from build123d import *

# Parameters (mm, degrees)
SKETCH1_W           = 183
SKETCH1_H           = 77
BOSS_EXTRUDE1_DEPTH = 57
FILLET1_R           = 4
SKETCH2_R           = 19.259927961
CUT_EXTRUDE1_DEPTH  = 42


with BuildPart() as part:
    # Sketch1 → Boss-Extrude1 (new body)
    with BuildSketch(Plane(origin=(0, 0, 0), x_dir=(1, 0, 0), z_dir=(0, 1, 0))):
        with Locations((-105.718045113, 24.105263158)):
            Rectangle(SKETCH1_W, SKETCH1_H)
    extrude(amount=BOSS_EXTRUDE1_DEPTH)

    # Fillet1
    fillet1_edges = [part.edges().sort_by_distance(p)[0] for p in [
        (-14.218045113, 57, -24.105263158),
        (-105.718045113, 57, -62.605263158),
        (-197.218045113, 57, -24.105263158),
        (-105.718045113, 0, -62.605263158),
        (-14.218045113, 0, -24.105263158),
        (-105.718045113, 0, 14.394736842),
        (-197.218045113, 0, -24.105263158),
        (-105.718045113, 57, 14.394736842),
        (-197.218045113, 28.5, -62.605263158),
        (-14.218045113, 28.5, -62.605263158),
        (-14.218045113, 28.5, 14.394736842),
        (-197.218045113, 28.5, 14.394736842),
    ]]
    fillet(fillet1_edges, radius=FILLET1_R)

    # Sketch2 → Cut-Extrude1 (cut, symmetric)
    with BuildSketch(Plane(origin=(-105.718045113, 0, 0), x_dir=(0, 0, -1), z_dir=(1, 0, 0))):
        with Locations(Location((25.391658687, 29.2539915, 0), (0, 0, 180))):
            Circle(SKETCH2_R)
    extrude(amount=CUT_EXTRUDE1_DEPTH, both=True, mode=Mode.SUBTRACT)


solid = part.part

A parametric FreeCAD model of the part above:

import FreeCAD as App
import Part
import Sketcher

doc = App.newDocument("Part")
params = doc.addObject("Spreadsheet::Sheet", "Params")
for row, (alias, value) in enumerate([
    ("sketch1_width", "183 mm"),
    ("sketch1_height", "77 mm"),
    ("pad1_length", "57 mm"),
    ("fillet_radius", "4 mm"),
    ("pocket1_length", "84 mm"),
], start=1):
    params.set(f"A{row}", alias)
    params.set(f"B{row}", "=" + value)
    params.setAlias(f"B{row}", alias)

body = doc.addObject("PartDesign::Body", "Body")

# Sketch on XZ plane
sketch1 = doc.addObject("Sketcher::SketchObject", "Sketch")
body.addObject(sketch1)
sketch1.AttachmentSupport = (doc.XZ_Plane, [""])
sketch1.MapMode = "FlatFace"
sketch1.addGeometry(Part.LineSegment(App.Vector(-197, -63, 0), App.Vector(-197, 14, 0)), False)
sketch1.addGeometry(Part.LineSegment(App.Vector(-197, 14, 0), App.Vector(-14, 14, 0)), False)
sketch1.addGeometry(Part.LineSegment(App.Vector(-14, 14, 0), App.Vector(-14, -63, 0)), False)
sketch1.addGeometry(Part.LineSegment(App.Vector(-14, -63, 0), App.Vector(-197, -63, 0)), False)
sketch1.addConstraint(Sketcher.Constraint("Coincident", 0, 2, 1, 1))
sketch1.addConstraint(Sketcher.Constraint("Coincident", 1, 2, 2, 1))
sketch1.addConstraint(Sketcher.Constraint("Coincident", 2, 2, 3, 1))
sketch1.addConstraint(Sketcher.Constraint("Coincident", 3, 2, 0, 1))
sketch1.addConstraint(Sketcher.Constraint("Vertical", 0))
sketch1.addConstraint(Sketcher.Constraint("Horizontal", 1))
sketch1.addConstraint(Sketcher.Constraint("Vertical", 2))
sketch1.addConstraint(Sketcher.Constraint("Horizontal", 3))
sketch1.addConstraint(Sketcher.Constraint("DistanceX", 1, 1, 1, 2, 183.0))
sketch1.addConstraint(Sketcher.Constraint("DistanceY", 0, 1, 0, 2, 77.0))
sketch1.addConstraint(Sketcher.Constraint("DistanceX", 0, 2, -1, 1, 197.218045))
sketch1.addConstraint(Sketcher.Constraint("DistanceY", -1, 1, 0, 2, 14.394737))
sketch1.setExpression("Constraints[8]", "Params.sketch1_width")
sketch1.setExpression("Constraints[9]", "Params.sketch1_height")
pad1 = doc.addObject("PartDesign::Pad", "Pad")
body.addObject(pad1)
pad1.Profile = sketch1
pad1.setExpression("Length", "Params.pad1_length")
pad1.Reversed = True
doc.recompute()

fillet = doc.addObject("PartDesign::Fillet", "Fillet")
body.addObject(fillet)
fillet.Base = (pad1, ["Edge1"])
fillet.UseAllEdges = True
fillet.setExpression("Radius", "Params.fillet_radius")

# Sketch on YZ plane
sketch2 = doc.addObject("Sketcher::SketchObject", "Sketch001")
body.addObject(sketch2)
sketch2.AttachmentSupport = (doc.YZ_Plane, [""])
sketch2.MapMode = "FlatFace"
sketch2.AttachmentOffset = App.Placement(App.Vector(0, 0, -105.718045), App.Rotation())
sketch2.addGeometry(Part.Circle(App.Vector(29, -25, 0), App.Vector(0, 0, 1), 19), False)
sketch2.addConstraint(Sketcher.Constraint("Diameter", 0, 38.519856))
sketch2.addConstraint(Sketcher.Constraint("DistanceX", -1, 1, 0, 3, 29.253992))
sketch2.addConstraint(Sketcher.Constraint("DistanceY", 0, 3, -1, 1, 25.391659))
pocket1 = doc.addObject("PartDesign::Pocket", "Pocket")
body.addObject(pocket1)
pocket1.Profile = sketch2
pocket1.setExpression("Length", "Params.pocket1_length")
pocket1.Midplane = True

doc.recompute()
